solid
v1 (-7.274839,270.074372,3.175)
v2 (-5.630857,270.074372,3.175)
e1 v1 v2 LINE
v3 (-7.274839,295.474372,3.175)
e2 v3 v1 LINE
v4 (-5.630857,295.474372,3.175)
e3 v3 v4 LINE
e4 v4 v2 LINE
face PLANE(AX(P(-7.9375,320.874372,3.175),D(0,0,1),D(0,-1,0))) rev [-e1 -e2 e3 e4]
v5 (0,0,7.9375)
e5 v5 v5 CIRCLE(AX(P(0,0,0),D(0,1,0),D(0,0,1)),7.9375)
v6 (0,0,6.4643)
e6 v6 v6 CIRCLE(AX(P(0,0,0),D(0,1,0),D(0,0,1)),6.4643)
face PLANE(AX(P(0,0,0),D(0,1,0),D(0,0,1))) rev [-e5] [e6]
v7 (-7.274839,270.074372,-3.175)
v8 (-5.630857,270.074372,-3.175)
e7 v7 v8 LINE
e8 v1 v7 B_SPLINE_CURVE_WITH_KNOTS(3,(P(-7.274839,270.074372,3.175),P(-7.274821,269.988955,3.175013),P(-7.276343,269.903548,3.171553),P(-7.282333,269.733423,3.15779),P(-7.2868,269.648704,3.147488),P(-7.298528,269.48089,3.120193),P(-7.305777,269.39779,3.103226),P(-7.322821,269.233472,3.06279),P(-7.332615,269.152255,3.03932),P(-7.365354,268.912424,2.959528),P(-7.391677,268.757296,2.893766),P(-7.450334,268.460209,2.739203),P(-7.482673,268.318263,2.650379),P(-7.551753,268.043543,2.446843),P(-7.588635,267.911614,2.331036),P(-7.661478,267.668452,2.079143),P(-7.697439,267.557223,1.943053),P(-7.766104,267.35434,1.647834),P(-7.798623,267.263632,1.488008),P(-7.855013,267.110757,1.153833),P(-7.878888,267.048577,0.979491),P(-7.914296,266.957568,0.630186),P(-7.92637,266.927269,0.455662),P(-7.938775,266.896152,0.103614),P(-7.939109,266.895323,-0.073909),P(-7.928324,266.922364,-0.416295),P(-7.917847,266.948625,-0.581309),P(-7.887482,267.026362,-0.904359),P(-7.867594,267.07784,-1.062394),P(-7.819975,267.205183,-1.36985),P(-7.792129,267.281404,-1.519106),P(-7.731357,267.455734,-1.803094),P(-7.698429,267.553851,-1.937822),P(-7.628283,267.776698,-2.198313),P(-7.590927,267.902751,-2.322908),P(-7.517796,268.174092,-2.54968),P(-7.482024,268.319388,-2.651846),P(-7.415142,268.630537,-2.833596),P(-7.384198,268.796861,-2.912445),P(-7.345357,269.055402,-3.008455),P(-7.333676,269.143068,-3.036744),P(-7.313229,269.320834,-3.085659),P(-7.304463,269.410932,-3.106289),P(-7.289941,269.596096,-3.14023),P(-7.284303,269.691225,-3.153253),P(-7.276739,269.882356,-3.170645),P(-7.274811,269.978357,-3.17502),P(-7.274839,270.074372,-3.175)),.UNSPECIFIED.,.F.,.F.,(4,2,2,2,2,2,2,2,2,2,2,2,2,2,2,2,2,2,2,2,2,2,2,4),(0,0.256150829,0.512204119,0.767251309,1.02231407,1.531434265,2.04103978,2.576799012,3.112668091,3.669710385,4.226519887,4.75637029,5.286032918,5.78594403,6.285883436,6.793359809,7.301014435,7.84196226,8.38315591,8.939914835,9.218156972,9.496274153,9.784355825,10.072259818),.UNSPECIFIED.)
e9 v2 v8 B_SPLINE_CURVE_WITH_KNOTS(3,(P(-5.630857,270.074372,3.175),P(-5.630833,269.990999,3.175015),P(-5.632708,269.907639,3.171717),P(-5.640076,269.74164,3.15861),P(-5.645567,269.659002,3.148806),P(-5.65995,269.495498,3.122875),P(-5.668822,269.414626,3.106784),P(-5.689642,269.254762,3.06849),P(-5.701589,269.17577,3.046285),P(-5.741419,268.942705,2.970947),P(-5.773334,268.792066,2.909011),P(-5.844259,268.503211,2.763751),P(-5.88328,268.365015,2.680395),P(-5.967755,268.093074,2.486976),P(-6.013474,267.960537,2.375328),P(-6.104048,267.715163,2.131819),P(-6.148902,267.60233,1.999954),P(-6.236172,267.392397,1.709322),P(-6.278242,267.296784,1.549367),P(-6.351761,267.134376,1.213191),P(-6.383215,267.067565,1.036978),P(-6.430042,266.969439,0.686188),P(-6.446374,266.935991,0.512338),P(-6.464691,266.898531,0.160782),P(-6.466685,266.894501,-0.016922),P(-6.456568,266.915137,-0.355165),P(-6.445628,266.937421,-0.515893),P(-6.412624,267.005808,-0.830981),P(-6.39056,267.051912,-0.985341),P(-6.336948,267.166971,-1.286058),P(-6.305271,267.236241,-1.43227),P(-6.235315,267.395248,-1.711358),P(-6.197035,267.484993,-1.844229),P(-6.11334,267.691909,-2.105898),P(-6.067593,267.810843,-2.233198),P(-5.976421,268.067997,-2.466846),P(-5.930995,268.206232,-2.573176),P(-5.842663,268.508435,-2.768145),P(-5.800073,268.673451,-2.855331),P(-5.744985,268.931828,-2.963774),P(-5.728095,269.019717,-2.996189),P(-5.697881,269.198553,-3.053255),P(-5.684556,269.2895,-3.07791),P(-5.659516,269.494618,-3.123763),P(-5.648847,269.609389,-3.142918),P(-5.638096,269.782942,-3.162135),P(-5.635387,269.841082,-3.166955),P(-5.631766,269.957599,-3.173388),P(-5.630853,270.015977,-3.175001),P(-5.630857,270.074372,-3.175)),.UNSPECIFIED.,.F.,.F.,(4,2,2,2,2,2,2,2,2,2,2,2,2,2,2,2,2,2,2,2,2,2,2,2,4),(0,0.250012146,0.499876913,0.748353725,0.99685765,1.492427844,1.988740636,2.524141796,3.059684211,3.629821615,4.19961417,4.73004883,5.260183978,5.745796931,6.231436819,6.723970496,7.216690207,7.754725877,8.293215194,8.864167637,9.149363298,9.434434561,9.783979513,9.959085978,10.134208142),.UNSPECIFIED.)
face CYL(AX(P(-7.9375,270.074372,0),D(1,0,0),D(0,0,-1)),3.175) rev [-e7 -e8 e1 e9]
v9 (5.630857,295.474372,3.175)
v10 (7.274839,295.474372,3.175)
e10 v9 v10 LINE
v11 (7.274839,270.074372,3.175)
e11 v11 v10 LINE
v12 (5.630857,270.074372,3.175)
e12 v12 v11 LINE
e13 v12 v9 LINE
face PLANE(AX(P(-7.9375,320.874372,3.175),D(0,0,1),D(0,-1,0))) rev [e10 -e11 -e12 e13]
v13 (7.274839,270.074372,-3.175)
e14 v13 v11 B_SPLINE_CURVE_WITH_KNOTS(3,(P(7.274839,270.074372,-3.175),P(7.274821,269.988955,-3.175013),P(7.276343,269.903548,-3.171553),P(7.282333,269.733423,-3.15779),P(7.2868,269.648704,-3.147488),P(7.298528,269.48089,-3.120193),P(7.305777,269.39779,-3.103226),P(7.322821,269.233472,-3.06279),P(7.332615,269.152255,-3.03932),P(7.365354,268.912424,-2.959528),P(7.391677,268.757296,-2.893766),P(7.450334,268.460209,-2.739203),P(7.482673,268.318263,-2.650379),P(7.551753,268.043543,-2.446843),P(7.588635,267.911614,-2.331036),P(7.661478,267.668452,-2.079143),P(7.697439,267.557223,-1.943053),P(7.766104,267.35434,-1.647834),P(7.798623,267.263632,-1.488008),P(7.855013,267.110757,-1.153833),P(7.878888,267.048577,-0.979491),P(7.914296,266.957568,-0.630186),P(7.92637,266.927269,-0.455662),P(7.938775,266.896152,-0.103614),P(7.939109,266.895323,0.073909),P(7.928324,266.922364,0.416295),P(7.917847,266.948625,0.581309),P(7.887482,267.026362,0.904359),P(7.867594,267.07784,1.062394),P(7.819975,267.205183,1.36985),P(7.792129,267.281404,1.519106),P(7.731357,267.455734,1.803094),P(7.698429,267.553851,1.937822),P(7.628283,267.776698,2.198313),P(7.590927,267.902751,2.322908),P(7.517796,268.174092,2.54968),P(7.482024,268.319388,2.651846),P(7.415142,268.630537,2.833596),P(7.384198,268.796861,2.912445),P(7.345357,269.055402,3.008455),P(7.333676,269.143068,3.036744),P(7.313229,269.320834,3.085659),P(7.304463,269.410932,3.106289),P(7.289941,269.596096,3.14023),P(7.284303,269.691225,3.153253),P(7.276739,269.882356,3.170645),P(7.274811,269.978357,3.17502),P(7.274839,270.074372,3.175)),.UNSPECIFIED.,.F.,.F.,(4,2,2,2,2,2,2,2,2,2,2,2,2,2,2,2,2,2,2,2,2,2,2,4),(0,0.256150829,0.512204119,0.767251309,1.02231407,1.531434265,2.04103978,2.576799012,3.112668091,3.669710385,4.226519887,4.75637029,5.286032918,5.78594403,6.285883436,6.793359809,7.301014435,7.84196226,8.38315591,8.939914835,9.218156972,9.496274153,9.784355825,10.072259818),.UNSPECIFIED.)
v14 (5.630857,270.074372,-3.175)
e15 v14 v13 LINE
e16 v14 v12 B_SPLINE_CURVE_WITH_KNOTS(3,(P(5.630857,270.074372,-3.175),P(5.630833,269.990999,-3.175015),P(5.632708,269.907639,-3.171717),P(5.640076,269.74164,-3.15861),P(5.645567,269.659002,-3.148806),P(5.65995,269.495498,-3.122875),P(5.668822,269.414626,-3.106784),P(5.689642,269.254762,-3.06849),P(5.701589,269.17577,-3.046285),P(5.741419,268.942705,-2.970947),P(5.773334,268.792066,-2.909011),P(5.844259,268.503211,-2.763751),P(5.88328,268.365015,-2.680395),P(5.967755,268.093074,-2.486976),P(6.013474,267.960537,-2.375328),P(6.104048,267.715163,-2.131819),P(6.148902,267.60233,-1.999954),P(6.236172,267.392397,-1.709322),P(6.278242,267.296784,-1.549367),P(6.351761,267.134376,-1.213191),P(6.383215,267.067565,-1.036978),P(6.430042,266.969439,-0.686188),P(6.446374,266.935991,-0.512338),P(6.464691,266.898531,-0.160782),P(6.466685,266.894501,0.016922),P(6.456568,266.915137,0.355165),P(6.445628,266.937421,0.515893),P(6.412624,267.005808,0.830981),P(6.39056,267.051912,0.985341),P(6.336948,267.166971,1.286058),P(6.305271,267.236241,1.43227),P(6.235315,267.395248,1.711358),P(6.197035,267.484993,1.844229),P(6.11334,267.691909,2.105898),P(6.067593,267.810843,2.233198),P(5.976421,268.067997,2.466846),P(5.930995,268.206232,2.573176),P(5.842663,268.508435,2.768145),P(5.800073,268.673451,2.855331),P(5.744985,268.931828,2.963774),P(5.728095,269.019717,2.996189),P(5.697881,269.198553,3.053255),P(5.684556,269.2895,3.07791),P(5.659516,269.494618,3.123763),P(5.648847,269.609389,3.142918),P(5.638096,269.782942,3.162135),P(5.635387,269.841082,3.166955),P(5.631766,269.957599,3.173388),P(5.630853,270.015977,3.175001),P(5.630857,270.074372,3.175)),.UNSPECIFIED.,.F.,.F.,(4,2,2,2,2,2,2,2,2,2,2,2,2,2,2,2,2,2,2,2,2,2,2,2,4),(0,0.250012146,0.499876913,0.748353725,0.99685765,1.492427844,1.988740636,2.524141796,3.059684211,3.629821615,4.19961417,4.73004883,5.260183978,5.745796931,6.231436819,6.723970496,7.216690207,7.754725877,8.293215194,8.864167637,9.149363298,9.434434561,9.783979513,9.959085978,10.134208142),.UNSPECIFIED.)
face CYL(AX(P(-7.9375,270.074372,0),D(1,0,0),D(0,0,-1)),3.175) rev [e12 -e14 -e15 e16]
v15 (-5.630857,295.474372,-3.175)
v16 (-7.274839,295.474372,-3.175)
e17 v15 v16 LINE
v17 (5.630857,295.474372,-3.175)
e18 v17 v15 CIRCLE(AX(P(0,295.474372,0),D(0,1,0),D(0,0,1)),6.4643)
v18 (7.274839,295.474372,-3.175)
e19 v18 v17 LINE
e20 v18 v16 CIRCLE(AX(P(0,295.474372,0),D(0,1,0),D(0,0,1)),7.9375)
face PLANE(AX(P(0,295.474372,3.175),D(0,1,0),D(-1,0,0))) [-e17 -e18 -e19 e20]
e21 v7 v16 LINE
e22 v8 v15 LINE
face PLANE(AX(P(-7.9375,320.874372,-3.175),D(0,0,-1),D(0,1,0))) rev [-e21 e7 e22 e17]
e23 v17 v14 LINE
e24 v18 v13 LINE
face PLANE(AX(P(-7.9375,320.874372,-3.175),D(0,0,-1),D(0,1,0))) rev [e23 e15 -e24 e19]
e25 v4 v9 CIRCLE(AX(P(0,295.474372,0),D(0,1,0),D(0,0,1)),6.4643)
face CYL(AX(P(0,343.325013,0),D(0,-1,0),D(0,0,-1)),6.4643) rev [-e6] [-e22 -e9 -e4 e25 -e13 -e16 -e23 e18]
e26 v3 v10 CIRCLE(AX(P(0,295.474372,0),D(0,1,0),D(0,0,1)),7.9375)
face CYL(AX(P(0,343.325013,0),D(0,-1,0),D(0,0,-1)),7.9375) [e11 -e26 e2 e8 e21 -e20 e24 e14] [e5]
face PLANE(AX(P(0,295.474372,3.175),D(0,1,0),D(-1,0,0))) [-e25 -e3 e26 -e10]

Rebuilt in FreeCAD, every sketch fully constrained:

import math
import FreeCAD as App
import Part
import Sketcher

V = App.Vector
Q = App.Units.Quantity

doc = App.newDocument("Part")
params = doc.addObject("Spreadsheet::Sheet", "Params")
for row, (alias, value) in enumerate([
    ("sketch1_diameter", "0.625 in"),
    ("sketch1_diameter2", "0.509 in"),
    ("pad1_length", "295.474372 mm"),
    ("sketch2_width", "2 in"),
    ("sketch2_radius", "0.125 in"),
], start=1):
    params.set(f"A{row}", alias)
    params.set(f"B{row}", "=" + value)
    params.setAlias(f"B{row}", alias)

body = doc.addObject("PartDesign::Body", "Body")

# Sketch on XZ plane
sketch1 = body.newObject("Sketcher::SketchObject", "Sketch")
sketch1.AttachmentSupport = (doc.getObject("XZ_Plane"), [""])
sketch1.MapMode = "FlatFace"
sketch1.addGeometry(Part.Circle(V(0, 0, 0), V(0, 0, 1), 7.9375), False)
sketch1.addGeometry(Part.Circle(V(0, 0, 0), V(0, 0, 1), 6.4643), False)
sketch1.addConstraint(Sketcher.Constraint("Coincident", 0, 3, -1, 1))
sketch1.addConstraint(Sketcher.Constraint("Coincident", 1, 3, -1, 1))
sketch1.addConstraint(Sketcher.Constraint("Diameter", 0, Q("0.625 in")))
sketch1.addConstraint(Sketcher.Constraint("Diameter", 1, Q("0.509 in")))
sketch1.setExpression("Constraints[2]", "Params.sketch1_diameter")
sketch1.setExpression("Constraints[3]", "Params.sketch1_diameter2")
pad1 = body.newObject("PartDesign::Pad", "Pad")
pad1.Profile = sketch1
pad1.setExpression("Length", "Params.pad1_length")
pad1.Reversed = True

# Sketch on YZ plane
sketch2 = body.newObject("Sketcher::SketchObject", "Sketch001")
sketch2.AttachmentSupport = (doc.getObject("YZ_Plane"), [""])
sketch2.MapMode = "FlatFace"
sketch2.addGeometry(Part.LineSegment(V(270.074372, -3.175, 0), V(320.874372, -3.175, 0)), False)
sketch2.addGeometry(Part.ArcOfCircle(Part.Circle(V(320.874372, 0, 0), V(0, 0, 1), 3.175), math.radians(-90), math.radians(90)), False)
sketch2.addGeometry(Part.LineSegment(V(320.874372, 3.175, 0), V(270.074372, 3.175, 0)), False)
sketch2.addGeometry(Part.ArcOfCircle(Part.Circle(V(270.074372, 0, 0), V(0, 0, 1), 3.175), math.radians(90), math.radians(270)), False)
sketch2.addConstraint(Sketcher.Constraint("Tangent", 0, 2, 1, 1))
sketch2.addConstraint(Sketcher.Constraint("Tangent", 1, 2, 2, 1))
sketch2.addConstraint(Sketcher.Constraint("Tangent", 2, 2, 3, 1))
sketch2.addConstraint(Sketcher.Constraint("Tangent", 3, 2, 0, 1))
sketch2.addConstraint(Sketcher.Constraint("Horizontal", 0))
sketch2.addConstraint(Sketcher.Constraint("Horizontal", 2))
sketch2.addConstraint(Sketcher.Constraint("PointOnObject", 1, 3, -1))
sketch2.addConstraint(Sketcher.Constraint("DistanceX", 0, 1, 0, 2, Q("2 in")))
sketch2.addConstraint(Sketcher.Constraint("Radius", 1, Q("0.125 in")))
sketch2.addConstraint(Sketcher.Constraint("DistanceX", -1, 1, 1, 3, 320.874372))
sketch2.setExpression("Constraints[7]", "Params.sketch2_width")
sketch2.setExpression("Constraints[8]", "Params.sketch2_radius")
pocket1 = body.newObject("PartDesign::Pocket", "Pocket")
pocket1.Profile = sketch2
pocket1.Type = "ThroughAll"
pocket1.Midplane = True

doc.recompute()
